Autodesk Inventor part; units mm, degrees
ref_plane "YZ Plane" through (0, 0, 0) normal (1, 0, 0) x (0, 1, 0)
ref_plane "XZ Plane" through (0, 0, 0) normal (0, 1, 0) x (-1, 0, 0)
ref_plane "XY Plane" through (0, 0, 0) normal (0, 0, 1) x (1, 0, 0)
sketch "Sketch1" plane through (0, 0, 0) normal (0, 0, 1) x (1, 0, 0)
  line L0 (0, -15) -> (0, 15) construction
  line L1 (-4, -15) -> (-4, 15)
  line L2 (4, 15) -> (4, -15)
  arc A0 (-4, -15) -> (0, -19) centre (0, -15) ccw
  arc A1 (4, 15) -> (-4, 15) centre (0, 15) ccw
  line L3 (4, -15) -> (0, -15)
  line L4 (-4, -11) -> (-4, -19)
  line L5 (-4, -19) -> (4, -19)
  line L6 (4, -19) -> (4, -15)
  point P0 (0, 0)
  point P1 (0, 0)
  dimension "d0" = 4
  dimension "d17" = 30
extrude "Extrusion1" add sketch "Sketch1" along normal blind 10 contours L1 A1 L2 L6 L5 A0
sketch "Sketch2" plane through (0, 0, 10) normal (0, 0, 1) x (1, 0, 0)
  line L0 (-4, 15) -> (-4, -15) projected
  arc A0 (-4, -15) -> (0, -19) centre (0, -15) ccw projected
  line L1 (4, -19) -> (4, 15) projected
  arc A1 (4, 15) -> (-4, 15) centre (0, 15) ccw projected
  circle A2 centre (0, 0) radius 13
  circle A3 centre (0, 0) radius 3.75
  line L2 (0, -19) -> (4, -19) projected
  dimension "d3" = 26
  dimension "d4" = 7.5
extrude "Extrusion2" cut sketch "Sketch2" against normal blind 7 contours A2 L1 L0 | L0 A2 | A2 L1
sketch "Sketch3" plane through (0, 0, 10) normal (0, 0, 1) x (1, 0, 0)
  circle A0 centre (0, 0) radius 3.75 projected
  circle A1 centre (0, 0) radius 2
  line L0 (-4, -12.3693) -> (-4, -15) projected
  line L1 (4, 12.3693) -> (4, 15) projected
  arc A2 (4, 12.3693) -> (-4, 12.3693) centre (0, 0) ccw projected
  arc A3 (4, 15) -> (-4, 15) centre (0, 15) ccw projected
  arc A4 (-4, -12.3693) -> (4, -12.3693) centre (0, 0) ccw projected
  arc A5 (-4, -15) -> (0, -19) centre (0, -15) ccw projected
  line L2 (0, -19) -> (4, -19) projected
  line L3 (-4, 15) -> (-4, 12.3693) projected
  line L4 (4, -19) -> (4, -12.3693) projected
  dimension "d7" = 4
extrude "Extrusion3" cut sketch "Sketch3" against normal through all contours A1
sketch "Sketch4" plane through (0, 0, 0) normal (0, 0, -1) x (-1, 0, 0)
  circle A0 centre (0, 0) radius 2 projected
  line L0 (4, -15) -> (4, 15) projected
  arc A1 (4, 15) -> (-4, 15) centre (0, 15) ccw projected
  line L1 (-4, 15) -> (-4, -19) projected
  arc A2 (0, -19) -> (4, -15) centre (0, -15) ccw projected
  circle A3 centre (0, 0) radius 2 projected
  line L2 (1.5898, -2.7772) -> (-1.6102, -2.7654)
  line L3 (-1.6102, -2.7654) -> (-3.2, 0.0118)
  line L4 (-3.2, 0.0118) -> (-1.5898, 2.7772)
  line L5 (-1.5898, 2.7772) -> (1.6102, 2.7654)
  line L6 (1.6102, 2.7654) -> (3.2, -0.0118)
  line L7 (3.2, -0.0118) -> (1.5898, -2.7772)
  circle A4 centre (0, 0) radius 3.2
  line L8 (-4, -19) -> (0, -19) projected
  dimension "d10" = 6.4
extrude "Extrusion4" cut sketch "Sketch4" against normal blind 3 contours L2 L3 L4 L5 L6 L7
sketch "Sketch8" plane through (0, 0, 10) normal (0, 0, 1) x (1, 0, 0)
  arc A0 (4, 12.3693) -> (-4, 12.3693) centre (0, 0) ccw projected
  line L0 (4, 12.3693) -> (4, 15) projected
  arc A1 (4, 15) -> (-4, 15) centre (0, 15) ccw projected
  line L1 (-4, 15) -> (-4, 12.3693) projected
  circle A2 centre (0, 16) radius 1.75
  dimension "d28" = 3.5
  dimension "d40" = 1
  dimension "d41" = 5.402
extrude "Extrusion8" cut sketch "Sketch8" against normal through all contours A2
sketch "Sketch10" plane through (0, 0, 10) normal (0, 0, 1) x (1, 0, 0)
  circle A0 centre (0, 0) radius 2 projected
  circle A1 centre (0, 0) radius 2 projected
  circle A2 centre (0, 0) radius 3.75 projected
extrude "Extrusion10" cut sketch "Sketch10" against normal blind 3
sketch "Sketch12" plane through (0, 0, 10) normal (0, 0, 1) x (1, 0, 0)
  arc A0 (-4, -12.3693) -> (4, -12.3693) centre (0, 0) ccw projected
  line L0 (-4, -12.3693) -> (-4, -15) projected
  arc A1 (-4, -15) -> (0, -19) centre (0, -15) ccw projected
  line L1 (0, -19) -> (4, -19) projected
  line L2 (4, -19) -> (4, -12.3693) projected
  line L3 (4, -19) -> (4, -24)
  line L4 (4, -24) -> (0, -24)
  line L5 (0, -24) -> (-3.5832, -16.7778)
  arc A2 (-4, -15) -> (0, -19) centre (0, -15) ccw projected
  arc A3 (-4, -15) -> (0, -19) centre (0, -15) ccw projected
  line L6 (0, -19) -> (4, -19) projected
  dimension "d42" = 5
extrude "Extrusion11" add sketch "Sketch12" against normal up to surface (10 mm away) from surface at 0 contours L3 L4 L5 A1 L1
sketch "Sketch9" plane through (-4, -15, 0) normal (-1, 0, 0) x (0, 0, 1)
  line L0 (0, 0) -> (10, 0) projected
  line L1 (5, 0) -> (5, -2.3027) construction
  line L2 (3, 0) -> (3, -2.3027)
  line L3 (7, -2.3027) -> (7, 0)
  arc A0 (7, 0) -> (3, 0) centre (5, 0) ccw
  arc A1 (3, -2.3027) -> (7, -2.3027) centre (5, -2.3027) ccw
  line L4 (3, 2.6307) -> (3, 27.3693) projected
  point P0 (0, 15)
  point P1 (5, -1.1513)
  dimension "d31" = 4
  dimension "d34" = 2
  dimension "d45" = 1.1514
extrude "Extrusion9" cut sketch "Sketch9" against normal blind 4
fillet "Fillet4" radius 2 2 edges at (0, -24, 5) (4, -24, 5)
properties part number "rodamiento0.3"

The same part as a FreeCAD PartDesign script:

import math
import FreeCAD as App
import Part
import Sketcher
from FreeCAD import Vector
Q = App.Units.Quantity


def edges_at(feature, points):
    """Names of the edges that pass closest to the given points."""
    edges = feature.Shape.Edges
    near = lambda p: min(range(len(edges)), key=lambda i: edges[i].distToShape(Part.Vertex(*p))[0])
    return sorted({f"Edge{near(p) + 1}" for p in points})

doc = App.newDocument("Part")
body = doc.addObject("PartDesign::Body", "Body")

sketch1 = doc.addObject("Sketcher::SketchObject", "Sketch")
body.addObject(sketch1)
sketch1.AttachmentSupport = (doc.XY_Plane, [""])
sketch1.MapMode = "FlatFace"
sketch1.addGeometry([
    Part.LineSegment(Vector(-4, 15, 0), Vector(-4, -15, 0)),
    Part.ArcOfCircle(Part.Circle(Vector(0, -15, 0), Vector(0, 0, 1), 4), math.radians(180), math.radians(270)),
    Part.LineSegment(Vector(0, -19, 0), Vector(4, -19, 0)),
    Part.LineSegment(Vector(4, -19, 0), Vector(4, 15, 0)),
    Part.ArcOfCircle(Part.Circle(Vector(0, 15, 0), Vector(0, 0, 1), 4), math.radians(0), math.radians(180)),
], False)
sketch1.addConstraint([
    Sketcher.Constraint("Tangent", 0, 2, 1, 1),
    Sketcher.Constraint("Tangent", 1, 2, 2, 1),
    Sketcher.Constraint("Coincident", 2, 2, 3, 1),
    Sketcher.Constraint("Tangent", 3, 2, 4, 1),
    Sketcher.Constraint("Tangent", 4, 2, 0, 1),
    Sketcher.Constraint("Vertical", 0),
    Sketcher.Constraint("Horizontal", 2),
    Sketcher.Constraint("Vertical", 3),
    Sketcher.Constraint("Equal", 1, 4),
    Sketcher.Constraint("Symmetric", 1, 3, 4, 3, -1, 1),
    Sketcher.Constraint("Radius", 1, Q("4 mm")),
    Sketcher.Constraint("DistanceY", 0, 2, 0, 1, Q("30 mm")),
])
pad1 = doc.addObject("PartDesign::Pad", "Pad")
body.addObject(pad1)
pad1.Profile = sketch1
pad1.Length = 10

sketch2 = doc.addObject("Sketcher::SketchObject", "Sketch001")
body.addObject(sketch2)
sketch2.AttachmentSupport = (doc.XY_Plane, [""])
sketch2.MapMode = "FlatFace"
sketch2.AttachmentOffset = App.Placement(Vector(0, 0, 10), App.Rotation())
sketch2.addGeometry([
    Part.Circle(Vector(0, 0, 0), Vector(0, 0, 1), 13),
    Part.Circle(Vector(0, 0, 0), Vector(0, 0, 1), 3.8),
], False)
sketch2.addConstraint([
    Sketcher.Constraint("Coincident", 0, 3, -1, 1),
    Sketcher.Constraint("Coincident", 1, 3, -1, 1),
    Sketcher.Constraint("Diameter", 0, Q("26 mm")),
    Sketcher.Constraint("Diameter", 1, Q("7.5 mm")),
])
pocket1 = doc.addObject("PartDesign::Pocket", "Pocket")
body.addObject(pocket1)
pocket1.Profile = sketch2
pocket1.Length = 7

sketch3 = doc.addObject("Sketcher::SketchObject", "Sketch002")
body.addObject(sketch3)
sketch3.AttachmentSupport = (doc.XY_Plane, [""])
sketch3.MapMode = "FlatFace"
sketch3.AttachmentOffset = App.Placement(Vector(0, 0, 10), App.Rotation())
sketch3.addGeometry(Part.Circle(Vector(0, 0, 0), Vector(0, 0, 1), 2), False)
sketch3.addConstraint([
    Sketcher.Constraint("Coincident", 0, 3, -1, 1),
    Sketcher.Constraint("Diameter", 0, Q("4 mm")),
])
pocket2 = doc.addObject("PartDesign::Pocket", "Pocket001")
body.addObject(pocket2)
pocket2.Profile = sketch3
pocket2.Type = "ThroughAll"

sketch4 = doc.addObject("Sketcher::SketchObject", "Sketch003")
body.addObject(sketch4)
sketch4.AttachmentSupport = (doc.XY_Plane, [""])
sketch4.MapMode = "FlatFace"
sketch4.addGeometry([
    Part.LineSegment(Vector(1.6, -2.8, 0), Vector(-1.6, -2.8, 0)),
    Part.LineSegment(Vector(-1.6, -2.8, 0), Vector(-3.2, 0, 0)),
    Part.LineSegment(Vector(-3.2, 0, 0), Vector(-1.6, 2.8, 0)),
    Part.LineSegment(Vector(-1.6, 2.8, 0), Vector(1.6, 2.8, 0)),
    Part.LineSegment(Vector(1.6, 2.8, 0), Vector(3.2, 0, 0)),
    Part.LineSegment(Vector(3.2, 0, 0), Vector(1.6, -2.8, 0)),
    Part.Circle(Vector(0, 0, 0), Vector(0, 0, 1), 2),
], False)
sketch4.addConstraint([
    Sketcher.Constraint("Coincident", 0, 2, 1, 1),
    Sketcher.Constraint("Coincident", 1, 2, 2, 1),
    Sketcher.Constraint("Coincident", 2, 2, 3, 1),
    Sketcher.Constraint("Coincident", 3, 2, 4, 1),
    Sketcher.Constraint("Coincident", 4, 2, 5, 1),
    Sketcher.Constraint("Coincident", 5, 2, 0, 1),
    Sketcher.Constraint("Coincident", 6, 3, -1, 1),
    Sketcher.Constraint("Symmetric", 0, 2, 3, 2, -1, 1),
    Sketcher.Constraint("Symmetric", 1, 2, 4, 2, -1, 1),
    Sketcher.Constraint("Symmetric", 2, 2, 5, 2, -1, 1),
    Sketcher.Constraint("Equal", 0, 1),
    Sketcher.Constraint("Equal", 1, 2),
    Sketcher.Constraint("Diameter", 6, Q("4 mm")),
    Sketcher.Constraint("DistanceX", 1, 2, 4, 2, Q("6.4 mm")),
    Sketcher.Constraint("Distance", 0, Q("3.2 mm")),
    Sketcher.Constraint("Angle", 1, Q("120.2108 deg")),
    Sketcher.Constraint("DistanceY", 1, 2, 3, 2, Q("2.789 mm")),
])
pocket3 = doc.addObject("PartDesign::Pocket", "Pocket002")
body.addObject(pocket3)
pocket3.Profile = sketch4
pocket3.Length = 3
pocket3.Reversed = True

sketch5 = doc.addObject("Sketcher::SketchObject", "Sketch004")
body.addObject(sketch5)
sketch5.AttachmentSupport = (doc.XY_Plane, [""])
sketch5.MapMode = "FlatFace"
sketch5.AttachmentOffset = App.Placement(Vector(0, 0, 10), App.Rotation())
sketch5.addGeometry(Part.Circle(Vector(0, 16, 0), Vector(0, 0, 1), 1.8), False)
sketch5.addConstraint([
    Sketcher.Constraint("PointOnObject", 0, 3, -2),
    Sketcher.Constraint("Diameter", 0, Q("3.5 mm")),
    Sketcher.Constraint("DistanceY", -1, 1, 0, 3, Q("16 mm")),
])
pocket4 = doc.addObject("PartDesign::Pocket", "Pocket003")
body.addObject(pocket4)
pocket4.Profile = sketch5
pocket4.Type = "ThroughAll"

sketch6 = doc.addObject("Sketcher::SketchObject", "Sketch005")
body.addObject(sketch6)
sketch6.AttachmentSupport = (doc.XY_Plane, [""])
sketch6.MapMode = "FlatFace"
sketch6.AttachmentOffset = App.Placement(Vector(0, 0, 10), App.Rotation())
sketch6.addGeometry([
    Part.Circle(Vector(0, 0, 0), Vector(0, 0, 1), 3.8),
    Part.Circle(Vector(0, 0, 0), Vector(0, 0, 1), 2),
], False)
sketch6.addConstraint([
    Sketcher.Constraint("Coincident", 0, 3, -1, 1),
    Sketcher.Constraint("Coincident", 1, 3, -1, 1),
    Sketcher.Constraint("Diameter", 1, Q("4 mm")),
    Sketcher.Constraint("Diameter", 0, Q("7.5 mm")),
])
pocket5 = doc.addObject("PartDesign::Pocket", "Pocket004")
body.addObject(pocket5)
pocket5.Profile = sketch6
pocket5.Length = 3

sketch7 = doc.addObject("Sketcher::SketchObject", "Sketch006")
body.addObject(sketch7)
sketch7.AttachmentSupport = (doc.XY_Plane, [""])
sketch7.MapMode = "FlatFace"
sketch7.AttachmentOffset = App.Placement(Vector(0, 0, 10), App.Rotation())
sketch7.addGeometry([
    Part.LineSegment(Vector(4, -24, 0), Vector(4, -19, 0)),
    Part.LineSegment(Vector(4, -19, 0), Vector(0, -19, 0)),
    Part.ArcOfCircle(Part.Circle(Vector(0, -15, 0), Vector(0, 0, 1), 4), math.radians(-154), math.radians(-90)),
    Part.LineSegment(Vector(-3.6, -16.8, 0), Vector(0, -24, 0)),
    Part.LineSegment(Vector(0, -24, 0), Vector(4, -24, 0)),
], False)
sketch7.addConstraint([
    Sketcher.Constraint("Coincident", 0, 2, 1, 1),
    Sketcher.Constraint("Tangent", 1, 2, 2, 2),
    Sketcher.Constraint("Tangent", 2, 1, 3, 1),
    Sketcher.Constraint("Coincident", 3, 2, 4, 1),
    Sketcher.Constraint("Coincident", 4, 2, 0, 1),
    Sketcher.Constraint("Vertical", 0),
    Sketcher.Constraint("Horizontal", 1),
    Sketcher.Constraint("Horizontal", 4),
    Sketcher.Constraint("PointOnObject", 2, 3, -2),
    Sketcher.Constraint("PointOnObject", 3, 2, -2),
    Sketcher.Constraint("DistanceY", 0, 1, 0, 2, Q("5 mm")),
    Sketcher.Constraint("Radius", 2, Q("4 mm")),
    Sketcher.Constraint("DistanceX", 1, 2, 1, 1, Q("4 mm")),
    Sketcher.Constraint("DistanceY", 2, 3, -1, 1, Q("15 mm")),
])
pad2 = doc.addObject("PartDesign::Pad", "Pad001")
body.addObject(pad2)
pad2.Profile = sketch7
pad2.Length = 10
pad2.Reversed = True

sketch8 = doc.addObject("Sketcher::SketchObject", "Sketch007")
body.addObject(sketch8)
sketch8.AttachmentSupport = (doc.YZ_Plane, [""])
sketch8.MapMode = "FlatFace"
sketch8.AttachmentOffset = App.Placement(Vector(0, 0, -4), App.Rotation())
sketch8.addGeometry([
    Part.ArcOfCircle(Part.Circle(Vector(-15, 5, 0), Vector(0, 0, 1), 2), math.radians(-90), math.radians(90)),
    Part.LineSegment(Vector(-15, 3, 0), Vector(-17.3, 3, 0)),
    Part.ArcOfCircle(Part.Circle(Vector(-17.3, 5, 0), Vector(0, 0, 1), 2), math.radians(90), math.radians(270)),
    Part.LineSegment(Vector(-17.3, 7, 0), Vector(-15, 7, 0)),
], False)
sketch8.addConstraint([
    Sketcher.Constraint("Tangent", 0, 1, 1, 1),
    Sketcher.Constraint("Tangent", 1, 2, 2, 2),
    Sketcher.Constraint("Tangent", 2, 1, 3, 1),
    Sketcher.Constraint("Tangent", 3, 2, 0, 2),
    Sketcher.Constraint("Horizontal", 1),
    Sketcher.Constraint("Horizontal", 3),
    Sketcher.Constraint("Radius", 0, Q("2 mm")),
    Sketcher.Constraint("DistanceX", 0, 3, -1, 1, Q("15 mm")),
    Sketcher.Constraint("DistanceY", -1, 1, 0, 3, Q("5 mm")),
    Sketcher.Constraint("DistanceX", 1, 2, 1, 1, Q("2.3027 mm")),
])
pocket6 = doc.addObject("PartDesign::Pocket", "Pocket005")
body.addObject(pocket6)
pocket6.Profile = sketch8
pocket6.Length = 4
pocket6.Reversed = True
doc.recompute()

fillet = doc.addObject("PartDesign::Fillet", "Fillet")
body.addObject(fillet)
fillet.Base = (pocket6, edges_at(pocket6, [(0, -24, 5), (4, -24, 5)]))
fillet.Radius = 2

doc.recompute()
